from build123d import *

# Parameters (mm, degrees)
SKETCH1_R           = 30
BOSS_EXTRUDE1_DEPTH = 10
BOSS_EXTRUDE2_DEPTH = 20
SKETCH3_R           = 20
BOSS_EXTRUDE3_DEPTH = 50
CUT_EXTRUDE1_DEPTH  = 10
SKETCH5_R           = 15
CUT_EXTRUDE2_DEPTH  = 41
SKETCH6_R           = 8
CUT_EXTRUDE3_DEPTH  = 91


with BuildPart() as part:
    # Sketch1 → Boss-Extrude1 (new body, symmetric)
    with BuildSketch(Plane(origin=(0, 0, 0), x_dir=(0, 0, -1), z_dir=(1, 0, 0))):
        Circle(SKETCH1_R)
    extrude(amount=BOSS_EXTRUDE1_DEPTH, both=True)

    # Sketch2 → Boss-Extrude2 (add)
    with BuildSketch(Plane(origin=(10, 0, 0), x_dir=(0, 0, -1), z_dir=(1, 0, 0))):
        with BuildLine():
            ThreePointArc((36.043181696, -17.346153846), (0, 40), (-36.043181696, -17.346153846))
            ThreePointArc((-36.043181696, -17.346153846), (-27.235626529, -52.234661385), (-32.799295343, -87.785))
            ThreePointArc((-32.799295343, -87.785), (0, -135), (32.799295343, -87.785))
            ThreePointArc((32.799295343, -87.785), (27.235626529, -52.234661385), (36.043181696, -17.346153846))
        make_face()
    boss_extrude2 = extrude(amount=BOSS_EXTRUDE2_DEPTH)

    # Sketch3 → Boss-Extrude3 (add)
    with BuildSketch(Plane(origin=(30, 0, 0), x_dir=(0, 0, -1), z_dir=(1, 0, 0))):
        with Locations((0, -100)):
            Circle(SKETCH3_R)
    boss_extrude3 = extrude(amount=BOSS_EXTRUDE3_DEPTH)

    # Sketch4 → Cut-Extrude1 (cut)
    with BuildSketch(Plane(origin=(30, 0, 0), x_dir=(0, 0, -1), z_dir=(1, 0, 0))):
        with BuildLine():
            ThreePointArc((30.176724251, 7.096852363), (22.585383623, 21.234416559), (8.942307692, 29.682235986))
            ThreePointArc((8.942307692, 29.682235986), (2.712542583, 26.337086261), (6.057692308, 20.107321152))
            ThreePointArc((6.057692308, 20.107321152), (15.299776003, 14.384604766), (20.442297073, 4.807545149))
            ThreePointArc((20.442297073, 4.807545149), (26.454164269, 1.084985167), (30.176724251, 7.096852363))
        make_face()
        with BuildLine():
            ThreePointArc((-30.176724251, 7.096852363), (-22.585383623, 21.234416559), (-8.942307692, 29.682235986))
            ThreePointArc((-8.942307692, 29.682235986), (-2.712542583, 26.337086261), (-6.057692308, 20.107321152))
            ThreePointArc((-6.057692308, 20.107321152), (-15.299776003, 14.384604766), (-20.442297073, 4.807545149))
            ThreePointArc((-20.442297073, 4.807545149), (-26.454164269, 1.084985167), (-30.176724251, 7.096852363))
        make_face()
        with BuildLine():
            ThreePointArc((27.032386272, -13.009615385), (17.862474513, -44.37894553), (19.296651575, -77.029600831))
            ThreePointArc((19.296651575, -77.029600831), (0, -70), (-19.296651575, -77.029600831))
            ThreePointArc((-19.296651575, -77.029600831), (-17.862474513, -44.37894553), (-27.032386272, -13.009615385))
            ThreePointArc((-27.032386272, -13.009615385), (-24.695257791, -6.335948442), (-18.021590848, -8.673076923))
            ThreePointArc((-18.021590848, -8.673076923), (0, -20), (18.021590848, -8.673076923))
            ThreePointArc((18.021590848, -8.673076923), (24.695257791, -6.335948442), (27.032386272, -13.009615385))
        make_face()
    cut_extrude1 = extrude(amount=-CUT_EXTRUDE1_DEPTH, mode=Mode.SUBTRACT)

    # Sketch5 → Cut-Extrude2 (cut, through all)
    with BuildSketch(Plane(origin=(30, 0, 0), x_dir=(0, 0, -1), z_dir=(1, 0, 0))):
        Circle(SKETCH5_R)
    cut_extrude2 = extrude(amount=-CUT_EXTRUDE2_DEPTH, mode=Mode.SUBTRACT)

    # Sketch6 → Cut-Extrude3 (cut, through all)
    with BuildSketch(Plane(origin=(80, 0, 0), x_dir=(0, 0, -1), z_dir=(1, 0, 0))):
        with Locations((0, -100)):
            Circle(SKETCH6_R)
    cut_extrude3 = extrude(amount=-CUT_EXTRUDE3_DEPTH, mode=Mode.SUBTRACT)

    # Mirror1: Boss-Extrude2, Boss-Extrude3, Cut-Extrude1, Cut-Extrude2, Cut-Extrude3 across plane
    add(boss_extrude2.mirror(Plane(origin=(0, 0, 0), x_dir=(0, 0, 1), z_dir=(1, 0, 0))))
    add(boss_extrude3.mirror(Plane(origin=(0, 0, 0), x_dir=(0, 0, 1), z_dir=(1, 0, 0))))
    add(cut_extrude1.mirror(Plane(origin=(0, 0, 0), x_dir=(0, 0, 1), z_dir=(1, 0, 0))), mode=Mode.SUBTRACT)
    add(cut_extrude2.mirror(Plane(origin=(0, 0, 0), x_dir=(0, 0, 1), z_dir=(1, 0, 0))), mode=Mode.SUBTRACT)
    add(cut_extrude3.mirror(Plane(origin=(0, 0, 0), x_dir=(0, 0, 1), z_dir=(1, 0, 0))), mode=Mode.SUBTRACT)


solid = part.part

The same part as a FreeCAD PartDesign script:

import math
import FreeCAD as App
import Part
import Sketcher

doc = App.newDocument("Part")
body = doc.addObject("PartDesign::Body", "Body")

# Sketch on YZ plane
sketch1 = body.newObject("Sketcher::SketchObject", "Sketch")
sketch1.AttachmentSupport = (doc.getObject("YZ_Plane"), [""])
sketch1.MapMode = "FlatFace"
sketch1.addGeometry(Part.Circle(App.Vector(0, 0, 0), App.Vector(0, 0, 1), 30), False)
sketch1.addConstraint(Sketcher.Constraint("Coincident", 0, 3, -1, 1))
sketch1.addConstraint(Sketcher.Constraint("Diameter", 0, 60.0))
pad1 = body.newObject("PartDesign::Pad", "Pad")
pad1.Profile = sketch1
pad1.Length = 20
pad1.Midplane = True

# Sketch on YZ plane
sketch2 = body.newObject("Sketcher::SketchObject", "Sketch001")
sketch2.AttachmentSupport = (doc.getObject("YZ_Plane"), [""])
sketch2.MapMode = "FlatFace"
sketch2.AttachmentOffset = App.Placement(App.Vector(0, 0, 10), App.Rotation())
sketch2.addGeometry(Part.ArcOfCircle(Part.Circle(App.Vector(0, 0, 0), App.Vector(0, 0, 1), 40), math.radians(-116), math.radians(116)), False)
sketch2.addGeometry(Part.ArcOfCircle(Part.Circle(App.Vector(-56, 117, 0), App.Vector(0, 0, 1), 90), math.radians(-110), math.radians(-64)), False)
sketch2.addGeometry(Part.ArcOfCircle(Part.Circle(App.Vector(-100, 0, 0), App.Vector(0, 0, 1), 35), math.radians(70), math.radians(290)), False)
sketch2.addGeometry(Part.ArcOfCircle(Part.Circle(App.Vector(-56, -117, 0), App.Vector(0, 0, 1), 90), math.radians(64), math.radians(110)), False)
sketch2.addConstraint(Sketcher.Constraint("Tangent", 0, 2, 1, 2))
sketch2.addConstraint(Sketcher.Constraint("Tangent", 1, 1, 2, 1))
sketch2.addConstraint(Sketcher.Constraint("Tangent", 2, 2, 3, 2))
sketch2.addConstraint(Sketcher.Constraint("Tangent", 3, 1, 0, 1))
sketch2.addConstraint(Sketcher.Constraint("Coincident", 0, 3, -1, 1))
sketch2.addConstraint(Sketcher.Constraint("Equal", 1, 3))
sketch2.addConstraint(Sketcher.Constraint("PointOnObject", 2, 3, -1))
sketch2.addConstraint(Sketcher.Constraint("Radius", 0, 40.0))
sketch2.addConstraint(Sketcher.Constraint("Radius", 1, 90.0))
sketch2.addConstraint(Sketcher.Constraint("Radius", 2, 35.0))
sketch2.addConstraint(Sketcher.Constraint("DistanceX", 2, 3, -1, 1, 100.0))
pad2 = body.newObject("PartDesign::Pad", "Pad001")
pad2.Profile = sketch2
pad2.Length = 20

# Sketch on YZ plane
sketch3 = body.newObject("Sketcher::SketchObject", "Sketch002")
sketch3.AttachmentSupport = (doc.getObject("YZ_Plane"), [""])
sketch3.MapMode = "FlatFace"
sketch3.AttachmentOffset = App.Placement(App.Vector(0, 0, 30), App.Rotation())
sketch3.addGeometry(Part.Circle(App.Vector(-100, 0, 0), App.Vector(0, 0, 1), 20), False)
sketch3.addConstraint(Sketcher.Constraint("PointOnObject", 0, 3, -1))
sketch3.addConstraint(Sketcher.Constraint("Diameter", 0, 40.0))
sketch3.addConstraint(Sketcher.Constraint("DistanceX", 0, 3, -1, 1, 100.0))
pad3 = body.newObject("PartDesign::Pad", "Pad002")
pad3.Profile = sketch3
pad3.Length = 50

# Sketch on YZ plane
sketch4 = body.newObject("Sketcher::SketchObject", "Sketch003")
sketch4.AttachmentSupport = (doc.getObject("YZ_Plane"), [""])
sketch4.MapMode = "FlatFace"
sketch4.AttachmentOffset = App.Placement(App.Vector(0, 0, 30), App.Rotation())
sketch4.addGeometry(Part.ArcOfCircle(Part.Circle(App.Vector(0, 0, 0), App.Vector(0, 0, 1), 31), math.radians(-77), math.radians(-17)), False)
sketch4.addGeometry(Part.ArcOfCircle(Part.Circle(App.Vector(25, -8, 0), App.Vector(0, 0, 1), 5), math.radians(-17), math.radians(163)), False)
sketch4.addGeometry(Part.ArcOfCircle(Part.Circle(App.Vector(0, 0, 0), App.Vector(0, 0, 1), 21), math.radians(-77), math.radians(-17)), False)
sketch4.addGeometry(Part.ArcOfCircle(Part.Circle(App.Vector(6, -25, 0), App.Vector(0, 0, 1), 5), math.radians(103), math.radians(283)), False)
sketch4.addGeometry(Part.ArcOfCircle(Part.Circle(App.Vector(0, 0, 0), App.Vector(0, 0, 1), 31), math.radians(17), math.radians(77)), False)
sketch4.addGeometry(Part.ArcOfCircle(Part.Circle(App.Vector(6, 25, 0), App.Vector(0, 0, 1), 5), math.radians(77), math.radians(257)), False)
sketch4.addGeometry(Part.ArcOfCircle(Part.Circle(App.Vector(0, 0, 0), App.Vector(0, 0, 1), 21), math.radians(17), math.radians(77)), False)
sketch4.addGeometry(Part.ArcOfCircle(Part.Circle(App.Vector(25, 8, 0), App.Vector(0, 0, 1), 5), math.radians(-163), math.radians(17)), False)
sketch4.addGeometry(Part.ArcOfCircle(Part.Circle(App.Vector(-56, -117, 0), App.Vector(0, 0, 1), 100), math.radians(64), math.radians(102)), False)
sketch4.addGeometry(Part.ArcOfCircle(Part.Circle(App.Vector(-11, -23, 0), App.Vector(0, 0, 1), 5), math.radians(-116), math.radians(64)), False)
sketch4.addGeometry(Part.ArcOfCircle(Part.Circle(App.Vector(0, 0, 0), App.Vector(0, 0, 1), 20), math.radians(116), math.radians(244)), False)
sketch4.addGeometry(Part.ArcOfCircle(Part.Circle(App.Vector(-11, 23, 0), App.Vector(0, 0, 1), 5), math.radians(-64), math.radians(116)), False)
sketch4.addGeometry(Part.ArcOfCircle(Part.Circle(App.Vector(-56, 117, 0), App.Vector(0, 0, 1), 100), math.radians(-102), math.radians(-64)), False)
sketch4.addGeometry(Part.ArcOfCircle(Part.Circle(App.Vector(-100, 0, 0), App.Vector(0, 0, 1), 30), math.radians(-40), math.radians(40)), False)
sketch4.addConstraint(Sketcher.Constraint("Tangent", 0, 2, 1, 1))
sketch4.addConstraint(Sketcher.Constraint("Tangent", 1, 2, 2, 2))
sketch4.addConstraint(Sketcher.Constraint("Tangent", 2, 1, 3, 1))
sketch4.addConstraint(Sketcher.Constraint("Tangent", 3, 2, 0, 1))
sketch4.addConstraint(Sketcher.Constraint("Tangent", 4, 2, 5, 1))
sketch4.addConstraint(Sketcher.Constraint("Tangent", 5, 2, 6, 2))
sketch4.addConstraint(Sketcher.Constraint("Tangent", 6, 1, 7, 1))
sketch4.addConstraint(Sketcher.Constraint("Tangent", 7, 2, 4, 1))
sketch4.addConstraint(Sketcher.Constraint("Tangent", 8, 1, 9, 1))
sketch4.addConstraint(Sketcher.Constraint("Tangent", 9, 2, 10, 2))
sketch4.addConstraint(Sketcher.Constraint("Tangent", 10, 1, 11, 1))
sketch4.addConstraint(Sketcher.Constraint("Tangent", 11, 2, 12, 2))
sketch4.addConstraint(Sketcher.Constraint("Coincident", 12, 1, 13, 2))
sketch4.addConstraint(Sketcher.Constraint("Coincident", 13, 1, 8, 2))
sketch4.addConstraint(Sketcher.Constraint("Coincident", 0, 3, -1, 1))
sketch4.addConstraint(Sketcher.Constraint("Coincident", 2, 3, -1, 1))
sketch4.addConstraint(Sketcher.Constraint("Coincident", 4, 3, -1, 1))
sketch4.addConstraint(Sketcher.Constraint("Coincident", 6, 3, -1, 1))
sketch4.addConstraint(Sketcher.Constraint("Coincident", 10, 3, -1, 1))
sketch4.addConstraint(Sketcher.Constraint("Equal", 0, 4))
sketch4.addConstraint(Sketcher.Constraint("Equal", 3, 5))
sketch4.addConstraint(Sketcher.Constraint("Equal", 7, 9))
sketch4.addConstraint(Sketcher.Constraint("Equal", 9, 11))
sketch4.addConstraint(Sketcher.Constraint("Equal", 8, 12))
sketch4.addConstraint(Sketcher.Constraint("Symmetric", 12, 1, 13, 1, -1))
sketch4.addConstraint(Sketcher.Constraint("Vertical", 3, 3, 5, 3))
sketch4.addConstraint(Sketcher.Constraint("Vertical", 1, 3, 7, 3))
sketch4.addConstraint(Sketcher.Constraint("Vertical", 9, 3, 11, 3))
sketch4.addConstraint(Sketcher.Constraint("Radius", 0, 31.0))
sketch4.addConstraint(Sketcher.Constraint("Radius", 1, 5.0))
sketch4.addConstraint(Sketcher.Constraint("Radius", 8, 100.0))
sketch4.addConstraint(Sketcher.Constraint("Radius", 10, 20.0))
sketch4.addConstraint(Sketcher.Constraint("Radius", 13, 30.0))
sketch4.addConstraint(Sketcher.Constraint("DistanceX", 13, 3, -1, 1, 100.0))
sketch4.addConstraint(Sketcher.Constraint("DistanceY", 1, 3, 7, 3, 15.0))
sketch4.addConstraint(Sketcher.Constraint("DistanceX", 8, 3, -1, 1, 56.375))
sketch4.addConstraint(Sketcher.Constraint("DistanceX", -1, 1, 3, 3, 5.952199))
sketch4.addConstraint(Sketcher.Constraint("DistanceX", 9, 3, 3, 2, 17.938199))
pocket1 = body.newObject("PartDesign::Pocket", "Pocket")
pocket1.Profile = sketch4
pocket1.Length = 10

# Sketch on YZ plane
sketch5 = body.newObject("Sketcher::SketchObject", "Sketch004")
sketch5.AttachmentSupport = (doc.getObject("YZ_Plane"), [""])
sketch5.MapMode = "FlatFace"
sketch5.AttachmentOffset = App.Placement(App.Vector(0, 0, 30), App.Rotation())
sketch5.addGeometry(Part.Circle(App.Vector(0, 0, 0), App.Vector(0, 0, 1), 15), False)
sketch5.addConstraint(Sketcher.Constraint("Coincident", 0, 3, -1, 1))
sketch5.addConstraint(Sketcher.Constraint("Diameter", 0, 30.0))
pocket2 = body.newObject("PartDesign::Pocket", "Pocket001")
pocket2.Profile = sketch5
pocket2.Type = "ThroughAll"

# Sketch on YZ plane
sketch6 = body.newObject("Sketcher::SketchObject", "Sketch005")
sketch6.AttachmentSupport = (doc.getObject("YZ_Plane"), [""])
sketch6.MapMode = "FlatFace"
sketch6.AttachmentOffset = App.Placement(App.Vector(0, 0, 80), App.Rotation())
sketch6.addGeometry(Part.Circle(App.Vector(-100, 0, 0), App.Vector(0, 0, 1), 8), False)
sketch6.addConstraint(Sketcher.Constraint("PointOnObject", 0, 3, -1))
sketch6.addConstraint(Sketcher.Constraint("Diameter", 0, 16.0))
sketch6.addConstraint(Sketcher.Constraint("DistanceX", 0, 3, -1, 1, 100.0))
pocket3 = body.newObject("PartDesign::Pocket", "Pocket002")
pocket3.Profile = sketch6
pocket3.Type = "ThroughAll"
doc.recompute()

mirrored = body.newObject("PartDesign::Mirrored", "Mirrored")
mirrored.Originals = [pad2, pad3, pocket1, pocket2, pocket3]
mirrored.MirrorPlane = (doc.getObject("YZ_Plane"), [""])
body.Tip = mirrored

doc.recompute()
